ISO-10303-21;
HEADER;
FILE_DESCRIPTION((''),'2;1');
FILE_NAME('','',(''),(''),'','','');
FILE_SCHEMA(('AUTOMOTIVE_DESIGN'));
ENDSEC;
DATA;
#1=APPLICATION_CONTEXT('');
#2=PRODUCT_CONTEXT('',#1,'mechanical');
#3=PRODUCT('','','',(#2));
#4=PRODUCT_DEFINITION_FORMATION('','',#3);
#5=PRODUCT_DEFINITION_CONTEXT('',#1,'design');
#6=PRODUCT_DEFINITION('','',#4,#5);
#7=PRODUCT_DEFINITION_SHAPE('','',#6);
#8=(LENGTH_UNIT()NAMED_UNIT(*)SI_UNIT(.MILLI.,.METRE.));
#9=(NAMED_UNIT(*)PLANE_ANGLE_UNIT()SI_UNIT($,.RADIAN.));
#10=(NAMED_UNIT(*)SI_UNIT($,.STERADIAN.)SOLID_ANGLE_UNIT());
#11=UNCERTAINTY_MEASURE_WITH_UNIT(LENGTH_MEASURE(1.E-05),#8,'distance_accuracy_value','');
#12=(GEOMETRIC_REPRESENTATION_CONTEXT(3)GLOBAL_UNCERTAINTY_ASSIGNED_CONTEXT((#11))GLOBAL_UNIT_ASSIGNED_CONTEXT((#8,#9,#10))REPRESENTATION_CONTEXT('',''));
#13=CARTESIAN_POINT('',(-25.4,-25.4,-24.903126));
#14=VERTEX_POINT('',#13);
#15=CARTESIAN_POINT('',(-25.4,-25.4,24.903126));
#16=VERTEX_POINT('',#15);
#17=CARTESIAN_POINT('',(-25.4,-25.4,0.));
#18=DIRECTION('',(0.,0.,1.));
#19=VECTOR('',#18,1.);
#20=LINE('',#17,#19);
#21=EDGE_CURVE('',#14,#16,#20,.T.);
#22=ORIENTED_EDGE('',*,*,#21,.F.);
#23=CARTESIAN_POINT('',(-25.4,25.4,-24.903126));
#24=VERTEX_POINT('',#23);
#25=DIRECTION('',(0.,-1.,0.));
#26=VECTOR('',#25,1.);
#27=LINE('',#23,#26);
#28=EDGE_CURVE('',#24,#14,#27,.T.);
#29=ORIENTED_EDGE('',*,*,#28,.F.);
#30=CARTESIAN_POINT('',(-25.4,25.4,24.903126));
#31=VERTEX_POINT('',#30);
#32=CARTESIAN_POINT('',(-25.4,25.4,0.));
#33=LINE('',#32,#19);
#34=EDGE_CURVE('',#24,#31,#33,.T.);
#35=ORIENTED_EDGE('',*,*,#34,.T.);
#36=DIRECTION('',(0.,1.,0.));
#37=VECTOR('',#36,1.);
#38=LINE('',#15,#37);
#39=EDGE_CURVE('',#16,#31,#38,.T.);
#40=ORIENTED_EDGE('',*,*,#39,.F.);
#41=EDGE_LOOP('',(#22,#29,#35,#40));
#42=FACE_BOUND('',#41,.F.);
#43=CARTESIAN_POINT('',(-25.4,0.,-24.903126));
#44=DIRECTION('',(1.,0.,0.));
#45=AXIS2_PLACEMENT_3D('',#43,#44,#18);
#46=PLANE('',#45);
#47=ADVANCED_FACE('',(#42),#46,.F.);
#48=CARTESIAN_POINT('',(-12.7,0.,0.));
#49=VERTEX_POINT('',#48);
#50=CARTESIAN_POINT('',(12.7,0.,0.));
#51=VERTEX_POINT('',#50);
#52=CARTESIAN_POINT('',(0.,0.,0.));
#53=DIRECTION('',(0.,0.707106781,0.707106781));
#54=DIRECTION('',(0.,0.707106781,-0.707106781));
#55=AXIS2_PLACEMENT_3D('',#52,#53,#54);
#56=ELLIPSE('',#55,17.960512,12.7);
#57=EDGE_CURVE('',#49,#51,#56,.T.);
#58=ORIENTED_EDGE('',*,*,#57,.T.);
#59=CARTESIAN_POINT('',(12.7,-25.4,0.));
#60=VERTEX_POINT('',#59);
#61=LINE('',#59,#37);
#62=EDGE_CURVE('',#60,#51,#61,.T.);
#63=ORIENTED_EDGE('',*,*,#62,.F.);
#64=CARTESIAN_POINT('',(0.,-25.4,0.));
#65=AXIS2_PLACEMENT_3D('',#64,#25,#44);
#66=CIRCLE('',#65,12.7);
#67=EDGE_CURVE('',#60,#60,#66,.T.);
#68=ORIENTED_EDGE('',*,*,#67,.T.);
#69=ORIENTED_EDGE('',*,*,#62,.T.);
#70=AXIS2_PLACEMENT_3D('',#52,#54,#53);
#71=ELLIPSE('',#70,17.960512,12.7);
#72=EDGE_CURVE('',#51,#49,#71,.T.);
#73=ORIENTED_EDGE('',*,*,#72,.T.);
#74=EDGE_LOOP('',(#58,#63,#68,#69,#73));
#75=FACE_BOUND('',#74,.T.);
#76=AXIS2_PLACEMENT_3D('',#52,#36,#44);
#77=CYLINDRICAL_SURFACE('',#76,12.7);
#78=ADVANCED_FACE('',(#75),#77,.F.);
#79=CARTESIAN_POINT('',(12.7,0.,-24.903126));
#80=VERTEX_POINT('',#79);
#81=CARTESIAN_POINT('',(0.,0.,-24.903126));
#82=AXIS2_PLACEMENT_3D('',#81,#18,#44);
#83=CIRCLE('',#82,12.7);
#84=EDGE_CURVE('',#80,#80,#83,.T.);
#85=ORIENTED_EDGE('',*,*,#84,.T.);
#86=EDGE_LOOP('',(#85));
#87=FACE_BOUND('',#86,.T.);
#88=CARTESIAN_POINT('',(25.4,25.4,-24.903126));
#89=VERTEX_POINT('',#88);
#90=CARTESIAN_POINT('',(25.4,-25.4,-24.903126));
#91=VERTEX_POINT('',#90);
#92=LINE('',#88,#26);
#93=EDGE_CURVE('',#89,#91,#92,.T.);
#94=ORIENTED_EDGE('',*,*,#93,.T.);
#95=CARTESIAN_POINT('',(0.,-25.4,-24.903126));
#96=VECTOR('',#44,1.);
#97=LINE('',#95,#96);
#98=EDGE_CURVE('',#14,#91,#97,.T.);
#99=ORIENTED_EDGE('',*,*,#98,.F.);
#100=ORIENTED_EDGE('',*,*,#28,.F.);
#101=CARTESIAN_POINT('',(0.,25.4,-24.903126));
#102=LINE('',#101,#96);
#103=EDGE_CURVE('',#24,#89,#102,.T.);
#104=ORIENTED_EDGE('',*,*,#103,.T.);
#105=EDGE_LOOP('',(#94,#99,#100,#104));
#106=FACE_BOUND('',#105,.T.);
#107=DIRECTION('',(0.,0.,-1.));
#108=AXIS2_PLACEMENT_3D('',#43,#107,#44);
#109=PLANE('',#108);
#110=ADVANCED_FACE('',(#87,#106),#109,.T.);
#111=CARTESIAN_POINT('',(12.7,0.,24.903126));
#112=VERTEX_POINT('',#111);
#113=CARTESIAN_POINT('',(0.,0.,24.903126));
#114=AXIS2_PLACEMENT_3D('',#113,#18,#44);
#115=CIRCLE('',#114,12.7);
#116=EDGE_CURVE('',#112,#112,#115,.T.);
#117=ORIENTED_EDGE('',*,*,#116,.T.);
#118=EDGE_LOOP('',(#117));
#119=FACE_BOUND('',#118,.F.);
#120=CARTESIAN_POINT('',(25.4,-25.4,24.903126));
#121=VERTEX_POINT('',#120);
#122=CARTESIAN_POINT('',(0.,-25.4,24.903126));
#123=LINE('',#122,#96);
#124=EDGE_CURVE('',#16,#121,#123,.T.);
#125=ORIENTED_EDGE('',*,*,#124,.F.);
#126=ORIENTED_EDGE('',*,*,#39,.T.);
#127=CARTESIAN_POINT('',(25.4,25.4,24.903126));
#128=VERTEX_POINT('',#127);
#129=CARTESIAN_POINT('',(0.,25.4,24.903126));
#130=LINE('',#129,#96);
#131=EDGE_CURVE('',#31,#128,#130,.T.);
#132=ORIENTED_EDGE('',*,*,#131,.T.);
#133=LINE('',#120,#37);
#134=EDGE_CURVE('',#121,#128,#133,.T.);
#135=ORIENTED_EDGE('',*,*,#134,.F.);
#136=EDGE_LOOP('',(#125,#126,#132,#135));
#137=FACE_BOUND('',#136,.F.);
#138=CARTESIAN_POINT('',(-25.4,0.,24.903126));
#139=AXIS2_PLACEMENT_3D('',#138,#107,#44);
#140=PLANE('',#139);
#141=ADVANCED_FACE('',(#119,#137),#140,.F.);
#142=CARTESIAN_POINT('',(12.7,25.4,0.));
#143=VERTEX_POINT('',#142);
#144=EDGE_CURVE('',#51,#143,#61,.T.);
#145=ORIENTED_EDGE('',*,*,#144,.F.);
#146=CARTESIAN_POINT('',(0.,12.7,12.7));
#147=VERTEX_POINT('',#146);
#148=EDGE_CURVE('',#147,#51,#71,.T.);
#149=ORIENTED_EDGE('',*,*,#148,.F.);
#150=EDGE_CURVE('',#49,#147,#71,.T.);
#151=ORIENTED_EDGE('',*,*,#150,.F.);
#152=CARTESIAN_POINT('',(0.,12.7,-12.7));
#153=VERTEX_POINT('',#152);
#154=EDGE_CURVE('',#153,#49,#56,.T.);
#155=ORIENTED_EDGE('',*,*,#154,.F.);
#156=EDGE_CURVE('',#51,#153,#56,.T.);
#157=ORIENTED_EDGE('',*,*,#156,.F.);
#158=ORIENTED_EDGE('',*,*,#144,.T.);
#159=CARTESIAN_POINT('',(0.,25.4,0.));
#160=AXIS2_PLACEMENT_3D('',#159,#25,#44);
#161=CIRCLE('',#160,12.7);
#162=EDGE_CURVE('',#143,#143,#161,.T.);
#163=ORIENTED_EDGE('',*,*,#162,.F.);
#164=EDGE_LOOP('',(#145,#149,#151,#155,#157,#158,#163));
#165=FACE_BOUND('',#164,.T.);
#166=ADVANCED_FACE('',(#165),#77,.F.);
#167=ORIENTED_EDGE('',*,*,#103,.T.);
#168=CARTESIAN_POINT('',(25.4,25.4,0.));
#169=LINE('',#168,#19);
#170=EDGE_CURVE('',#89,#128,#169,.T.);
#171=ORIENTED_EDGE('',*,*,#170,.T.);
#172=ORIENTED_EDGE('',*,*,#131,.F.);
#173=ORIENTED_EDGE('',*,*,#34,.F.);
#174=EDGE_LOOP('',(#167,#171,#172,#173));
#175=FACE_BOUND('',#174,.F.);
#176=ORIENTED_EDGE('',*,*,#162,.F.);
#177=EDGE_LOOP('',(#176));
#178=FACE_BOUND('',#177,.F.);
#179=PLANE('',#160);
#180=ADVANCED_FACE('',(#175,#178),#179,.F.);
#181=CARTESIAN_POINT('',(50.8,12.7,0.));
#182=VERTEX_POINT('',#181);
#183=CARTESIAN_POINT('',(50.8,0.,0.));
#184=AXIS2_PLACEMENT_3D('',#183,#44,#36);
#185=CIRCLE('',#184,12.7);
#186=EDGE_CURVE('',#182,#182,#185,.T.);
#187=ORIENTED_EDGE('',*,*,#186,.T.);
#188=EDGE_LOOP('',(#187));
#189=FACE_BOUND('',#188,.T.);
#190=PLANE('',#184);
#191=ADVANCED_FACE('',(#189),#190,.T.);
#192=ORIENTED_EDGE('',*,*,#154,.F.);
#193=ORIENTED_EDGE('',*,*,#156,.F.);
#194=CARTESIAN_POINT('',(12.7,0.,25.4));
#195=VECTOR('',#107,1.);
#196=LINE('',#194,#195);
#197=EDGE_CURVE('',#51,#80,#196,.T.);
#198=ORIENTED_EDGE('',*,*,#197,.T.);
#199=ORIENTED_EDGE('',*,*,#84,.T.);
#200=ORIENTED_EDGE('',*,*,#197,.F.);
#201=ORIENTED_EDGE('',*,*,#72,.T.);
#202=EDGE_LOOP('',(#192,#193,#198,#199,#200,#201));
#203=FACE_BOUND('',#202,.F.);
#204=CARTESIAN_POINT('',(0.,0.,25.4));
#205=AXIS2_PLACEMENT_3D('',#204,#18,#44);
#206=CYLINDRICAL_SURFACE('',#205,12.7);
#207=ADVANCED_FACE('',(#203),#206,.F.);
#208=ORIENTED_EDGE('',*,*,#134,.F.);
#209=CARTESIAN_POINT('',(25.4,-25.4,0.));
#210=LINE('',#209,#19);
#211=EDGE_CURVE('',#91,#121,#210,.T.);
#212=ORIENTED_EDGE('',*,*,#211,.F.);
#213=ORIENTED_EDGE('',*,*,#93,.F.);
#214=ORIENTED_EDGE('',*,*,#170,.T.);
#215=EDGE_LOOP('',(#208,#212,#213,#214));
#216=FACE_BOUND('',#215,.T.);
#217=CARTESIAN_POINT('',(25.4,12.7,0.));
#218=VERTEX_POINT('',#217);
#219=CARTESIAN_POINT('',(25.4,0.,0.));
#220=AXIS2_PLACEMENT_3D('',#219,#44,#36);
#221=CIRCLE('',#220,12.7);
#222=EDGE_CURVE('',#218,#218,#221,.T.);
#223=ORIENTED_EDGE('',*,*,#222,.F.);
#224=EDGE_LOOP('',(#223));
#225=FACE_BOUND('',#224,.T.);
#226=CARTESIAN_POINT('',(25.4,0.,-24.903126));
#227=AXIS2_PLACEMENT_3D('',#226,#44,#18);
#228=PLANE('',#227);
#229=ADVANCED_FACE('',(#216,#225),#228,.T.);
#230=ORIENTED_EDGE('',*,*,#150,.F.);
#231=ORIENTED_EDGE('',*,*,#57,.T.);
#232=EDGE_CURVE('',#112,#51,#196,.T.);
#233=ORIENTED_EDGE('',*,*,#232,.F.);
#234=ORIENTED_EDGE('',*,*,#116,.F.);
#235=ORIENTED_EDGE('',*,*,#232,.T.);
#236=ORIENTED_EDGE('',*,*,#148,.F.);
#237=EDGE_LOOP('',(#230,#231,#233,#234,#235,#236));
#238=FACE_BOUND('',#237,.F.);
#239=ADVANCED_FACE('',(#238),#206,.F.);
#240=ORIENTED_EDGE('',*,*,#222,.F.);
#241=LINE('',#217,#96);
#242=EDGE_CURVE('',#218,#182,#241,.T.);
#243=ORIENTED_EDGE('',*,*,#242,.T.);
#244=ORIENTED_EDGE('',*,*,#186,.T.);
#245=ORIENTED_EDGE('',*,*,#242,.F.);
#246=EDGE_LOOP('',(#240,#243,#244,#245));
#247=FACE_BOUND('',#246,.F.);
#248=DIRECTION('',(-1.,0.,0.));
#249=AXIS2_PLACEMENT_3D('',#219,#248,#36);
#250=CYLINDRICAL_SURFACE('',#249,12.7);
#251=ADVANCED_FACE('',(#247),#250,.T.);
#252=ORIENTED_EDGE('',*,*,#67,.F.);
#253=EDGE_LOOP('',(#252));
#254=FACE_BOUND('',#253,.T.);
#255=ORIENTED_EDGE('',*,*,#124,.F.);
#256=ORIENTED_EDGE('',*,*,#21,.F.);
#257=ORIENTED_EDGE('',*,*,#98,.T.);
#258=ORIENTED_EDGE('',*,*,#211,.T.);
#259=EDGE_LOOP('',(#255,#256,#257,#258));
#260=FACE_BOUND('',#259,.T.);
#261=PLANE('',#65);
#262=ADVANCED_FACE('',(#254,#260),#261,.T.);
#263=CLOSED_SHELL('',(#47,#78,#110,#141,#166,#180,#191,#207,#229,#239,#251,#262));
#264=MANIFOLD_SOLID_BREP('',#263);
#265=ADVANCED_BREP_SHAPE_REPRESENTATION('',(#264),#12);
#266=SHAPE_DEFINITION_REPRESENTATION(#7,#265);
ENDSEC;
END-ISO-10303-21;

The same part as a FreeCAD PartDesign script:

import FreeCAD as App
import Part
import Sketcher

V = App.Vector
Q = App.Units.Quantity


def add_polygon(sketch, points):
    """Adds a closed chain of lines whose ends are joined by coincident constraints."""
    first, n = sketch.GeometryCount, len(points)
    for a, b in zip(points, points[1:] + points[:1]):
        sketch.addGeometry(Part.LineSegment(App.Vector(*a, 0), App.Vector(*b, 0)), False)
    for i in range(n):
        sketch.addConstraint(Sketcher.Constraint("Coincident", first + i, 2, first + (i + 1) % n, 1))

doc = App.newDocument("Part")
body = doc.addObject("PartDesign::Body", "Body")

# Sketch on XZ plane
sketch1 = doc.addObject("Sketcher::SketchObject", "Sketch")
body.addObject(sketch1)
sketch1.AttachmentSupport = (doc.XZ_Plane, [""])
sketch1.MapMode = "FlatFace"
add_polygon(sketch1, [(-25, 25), (-25, -25), (25, -25), (25, 25)])  # lines 0-3
sketch1.addGeometry(Part.Circle(V(0, 0, 0), V(0, 0, 1), 13), False)  # 4
sketch1.addConstraint(Sketcher.Constraint("Vertical", 0))
sketch1.addConstraint(Sketcher.Constraint("Horizontal", 1))
sketch1.addConstraint(Sketcher.Constraint("Vertical", 2))
sketch1.addConstraint(Sketcher.Constraint("Horizontal", 3))
sketch1.addConstraint(Sketcher.Constraint("Coincident", 4, 3, -1, 1))
sketch1.addConstraint(Sketcher.Constraint("Symmetric", 0, 2, 2, 2, -1, 1))
sketch1.addConstraint(Sketcher.Constraint("Diameter", 4, Q("1 in")))
sketch1.addConstraint(Sketcher.Constraint("DistanceX", 1, 1, 1, 2, Q("2 in")))
sketch1.addConstraint(Sketcher.Constraint("DistanceY", 0, 2, 0, 1, Q("49.806252 mm")))
pad1 = doc.addObject("PartDesign::Pad", "Pad")
body.addObject(pad1)
pad1.Profile = sketch1
pad1.Length = Q("2 in")
pad1.Midplane = True

# Sketch on XY plane
sketch2 = doc.addObject("Sketcher::SketchObject", "Sketch001")
body.addObject(sketch2)
sketch2.AttachmentSupport = (doc.XY_Plane, [""])
sketch2.MapMode = "FlatFace"
sketch2.AttachmentOffset = App.Placement(V(0, 0, 1 * 25.4), App.Rotation())
sketch2.addGeometry(Part.Circle(V(0, 0, 0), V(0, 0, 1), 13), False)
sketch2.addConstraint(Sketcher.Constraint("Coincident", 0, 3, -1, 1))
sketch2.addConstraint(Sketcher.Constraint("Diameter", 0, Q("1 in")))
pocket1 = doc.addObject("PartDesign::Pocket", "Pocket")
body.addObject(pocket1)
pocket1.Profile = sketch2
pocket1.Length = Q("2 in")

# Sketch on YZ plane
sketch3 = doc.addObject("Sketcher::SketchObject", "Sketch002")
body.addObject(sketch3)
sketch3.AttachmentSupport = (doc.YZ_Plane, [""])
sketch3.MapMode = "FlatFace"
sketch3.AttachmentOffset = App.Placement(V(0, 0, 1 * 25.4), App.Rotation())
sketch3.addGeometry(Part.Circle(V(0, 0, 0), V(0, 0, 1), 13), False)
sketch3.addConstraint(Sketcher.Constraint("Coincident", 0, 3, -1, 1))
sketch3.addConstraint(Sketcher.Constraint("Diameter", 0, Q("1 in")))
pad2 = doc.addObject("PartDesign::Pad", "Pad001")
body.addObject(pad2)
pad2.Profile = sketch3
pad2.Length = Q("1 in")

doc.recompute()
